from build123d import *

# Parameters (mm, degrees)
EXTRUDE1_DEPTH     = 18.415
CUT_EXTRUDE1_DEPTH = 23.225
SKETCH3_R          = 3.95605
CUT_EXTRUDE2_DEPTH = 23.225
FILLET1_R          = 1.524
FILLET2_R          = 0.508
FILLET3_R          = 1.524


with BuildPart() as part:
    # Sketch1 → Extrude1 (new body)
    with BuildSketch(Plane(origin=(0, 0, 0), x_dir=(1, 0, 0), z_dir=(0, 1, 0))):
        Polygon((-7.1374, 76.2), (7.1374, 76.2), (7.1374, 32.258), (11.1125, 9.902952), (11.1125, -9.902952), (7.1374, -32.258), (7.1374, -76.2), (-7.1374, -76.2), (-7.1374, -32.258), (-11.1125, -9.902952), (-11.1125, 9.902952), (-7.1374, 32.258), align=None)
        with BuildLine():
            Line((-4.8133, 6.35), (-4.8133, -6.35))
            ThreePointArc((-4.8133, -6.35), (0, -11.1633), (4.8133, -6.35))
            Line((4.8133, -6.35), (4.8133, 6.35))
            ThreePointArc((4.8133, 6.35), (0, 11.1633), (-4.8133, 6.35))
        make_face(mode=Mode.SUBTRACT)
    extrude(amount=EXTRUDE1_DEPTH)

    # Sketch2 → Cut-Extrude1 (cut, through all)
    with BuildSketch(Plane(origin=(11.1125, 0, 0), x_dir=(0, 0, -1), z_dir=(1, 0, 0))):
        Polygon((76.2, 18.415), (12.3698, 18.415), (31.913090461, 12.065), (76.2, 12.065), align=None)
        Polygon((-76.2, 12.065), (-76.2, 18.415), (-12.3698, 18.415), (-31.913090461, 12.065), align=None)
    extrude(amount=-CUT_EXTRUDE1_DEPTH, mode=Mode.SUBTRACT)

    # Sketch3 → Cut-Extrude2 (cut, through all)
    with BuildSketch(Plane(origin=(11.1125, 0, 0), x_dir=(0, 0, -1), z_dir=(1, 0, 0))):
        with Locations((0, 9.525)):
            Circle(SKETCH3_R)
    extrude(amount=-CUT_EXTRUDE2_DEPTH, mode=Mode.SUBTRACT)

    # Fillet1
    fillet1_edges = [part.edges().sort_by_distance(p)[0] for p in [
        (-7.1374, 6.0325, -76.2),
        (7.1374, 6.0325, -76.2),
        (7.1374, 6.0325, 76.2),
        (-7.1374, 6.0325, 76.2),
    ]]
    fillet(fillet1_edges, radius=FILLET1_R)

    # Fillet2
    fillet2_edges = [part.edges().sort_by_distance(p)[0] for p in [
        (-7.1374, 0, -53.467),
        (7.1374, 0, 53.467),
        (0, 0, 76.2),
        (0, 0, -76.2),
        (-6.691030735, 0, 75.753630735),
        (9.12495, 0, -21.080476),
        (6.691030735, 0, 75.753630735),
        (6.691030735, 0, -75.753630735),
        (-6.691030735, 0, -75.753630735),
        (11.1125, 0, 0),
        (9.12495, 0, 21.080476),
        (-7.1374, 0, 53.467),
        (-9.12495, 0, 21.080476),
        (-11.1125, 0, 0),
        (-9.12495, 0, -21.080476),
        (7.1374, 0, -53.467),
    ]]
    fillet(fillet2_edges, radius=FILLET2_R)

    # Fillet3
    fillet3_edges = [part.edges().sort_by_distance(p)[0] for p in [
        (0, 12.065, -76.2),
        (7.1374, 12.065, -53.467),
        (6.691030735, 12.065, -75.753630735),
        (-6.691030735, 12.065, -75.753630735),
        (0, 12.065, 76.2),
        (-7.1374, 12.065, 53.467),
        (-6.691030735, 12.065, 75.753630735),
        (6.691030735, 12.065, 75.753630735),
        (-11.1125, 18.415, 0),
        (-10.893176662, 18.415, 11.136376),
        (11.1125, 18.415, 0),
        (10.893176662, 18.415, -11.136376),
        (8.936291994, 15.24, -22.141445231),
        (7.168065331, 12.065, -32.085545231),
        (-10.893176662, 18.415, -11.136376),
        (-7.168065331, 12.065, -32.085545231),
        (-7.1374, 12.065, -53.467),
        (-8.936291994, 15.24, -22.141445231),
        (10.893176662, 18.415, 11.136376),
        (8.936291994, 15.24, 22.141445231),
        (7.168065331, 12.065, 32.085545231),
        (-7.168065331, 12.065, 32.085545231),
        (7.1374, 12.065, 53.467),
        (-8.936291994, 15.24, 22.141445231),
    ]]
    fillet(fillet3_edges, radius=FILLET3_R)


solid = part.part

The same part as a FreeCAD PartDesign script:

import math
import FreeCAD as App
import Part
import Sketcher
from FreeCAD import Vector
Q = App.Units.Quantity


def edges_at(feature, points):
    """Names of the edges that pass closest to the given points."""
    edges = feature.Shape.Edges
    near = lambda p: min(range(len(edges)), key=lambda i: edges[i].distToShape(Part.Vertex(*p))[0])
    return sorted({f"Edge{near(p) + 1}" for p in points})

doc = App.newDocument("Part")
body = doc.addObject("PartDesign::Body", "Body")

# Sketch on XZ plane
sketch1 = body.newObject("Sketcher::SketchObject", "Sketch")
sketch1.AttachmentSupport = (doc.getObject("XZ_Plane"), [""])
sketch1.MapMode = "FlatFace"
sketch1.addGeometry([
    Part.LineSegment(Vector(7.1, -76.2, 0), Vector(-7.1, -76.2, 0)),  # 0
    Part.LineSegment(Vector(-7.1, -76.2, 0), Vector(-7.1, -32.3, 0)),  # 1
    Part.LineSegment(Vector(-7.1, -32.3, 0), Vector(-11.1, -9.9, 0)),  # 2
    Part.LineSegment(Vector(-11.1, -9.9, 0), Vector(-11.1, 9.9, 0)),  # 3
    Part.LineSegment(Vector(-11.1, 9.9, 0), Vector(-7.1, 32.3, 0)),  # 4
    Part.LineSegment(Vector(-7.1, 32.3, 0), Vector(-7.1, 76.2, 0)),  # 5
    Part.LineSegment(Vector(-7.1, 76.2, 0), Vector(7.1, 76.2, 0)),  # 6
    Part.LineSegment(Vector(7.1, 76.2, 0), Vector(7.1, 32.3, 0)),  # 7
    Part.LineSegment(Vector(7.1, 32.3, 0), Vector(11.1, 9.9, 0)),  # 8
    Part.LineSegment(Vector(11.1, 9.9, 0), Vector(11.1, -9.9, 0)),  # 9
    Part.LineSegment(Vector(11.1, -9.9, 0), Vector(7.1, -32.3, 0)),  # 10
    Part.LineSegment(Vector(7.1, -32.3, 0), Vector(7.1, -76.2, 0)),  # 11
    Part.ArcOfCircle(Part.Circle(Vector(0, -6.3, 0), Vector(0, 0, 1), 4.8), math.radians(180), math.radians(360)),  # 12
    Part.LineSegment(Vector(4.8, -6.3, 0), Vector(4.8, 6.3, 0)),  # 13
    Part.ArcOfCircle(Part.Circle(Vector(0, 6.3, 0), Vector(0, 0, 1), 4.8), math.radians(0), math.radians(180)),  # 14
    Part.LineSegment(Vector(-4.8, 6.3, 0), Vector(-4.8, -6.3, 0)),  # 15
], False)
sketch1.addConstraint([
    Sketcher.Constraint("Coincident", 0, 2, 1, 1),
    Sketcher.Constraint("Coincident", 1, 2, 2, 1),
    Sketcher.Constraint("Coincident", 2, 2, 3, 1),
    Sketcher.Constraint("Coincident", 3, 2, 4, 1),
    Sketcher.Constraint("Coincident", 4, 2, 5, 1),
    Sketcher.Constraint("Coincident", 5, 2, 6, 1),
    Sketcher.Constraint("Coincident", 6, 2, 7, 1),
    Sketcher.Constraint("Coincident", 7, 2, 8, 1),
    Sketcher.Constraint("Coincident", 8, 2, 9, 1),
    Sketcher.Constraint("Coincident", 9, 2, 10, 1),
    Sketcher.Constraint("Coincident", 10, 2, 11, 1),
    Sketcher.Constraint("Coincident", 11, 2, 0, 1),
    Sketcher.Constraint("Tangent", 12, 2, 13, 1),
    Sketcher.Constraint("Tangent", 13, 2, 14, 1),
    Sketcher.Constraint("Tangent", 14, 2, 15, 1),
    Sketcher.Constraint("Tangent", 15, 2, 12, 1),
    Sketcher.Constraint("Horizontal", 0),
    Sketcher.Constraint("Vertical", 1),
    Sketcher.Constraint("Vertical", 3),
    Sketcher.Constraint("Vertical", 5),
    Sketcher.Constraint("Horizontal", 6),
    Sketcher.Constraint("Vertical", 7),
    Sketcher.Constraint("Vertical", 9),
    Sketcher.Constraint("Vertical", 11),
    Sketcher.Constraint("Vertical", 13),
    Sketcher.Constraint("Vertical", 15),
    Sketcher.Constraint("Symmetric", 12, 3, 14, 3, -1, 1),
    Sketcher.Constraint("Symmetric", 0, 2, 6, 2, -1, 1),
    Sketcher.Constraint("Symmetric", 2, 2, 8, 2, -1, 1),
    Sketcher.Constraint("Symmetric", 4, 2, 10, 2, -1, 1),
    Sketcher.Constraint("Symmetric", 4, 2, 7, 2, -2),
    Sketcher.Constraint("Parallel", 2, 8),
    Sketcher.Constraint("Parallel", 4, 10),
    Sketcher.Constraint("Horizontal", 3, 2, 8, 2),
    Sketcher.Constraint("DistanceY", 13, 1, 13, 2, Q("0.5 in")),
    Sketcher.Constraint("DistanceY", 0, 2, -1, 1, Q("3 in")),
    Sketcher.Constraint("DistanceY", 1, 1, 1, 2, Q("1.73 in")),
    Sketcher.Constraint("Radius", 12, Q("0.1895 in")),
    Sketcher.Constraint("DistanceX", 0, 2, 0, 1, Q("0.562 in")),
    Sketcher.Constraint("DistanceX", 2, 2, -1, 1, Q("0.4375 in")),
    Sketcher.Constraint("DistanceY", 3, 1, 3, 2, Q("19.805904 mm")),
])
pad1 = body.newObject("PartDesign::Pad", "Pad")
pad1.Profile = sketch1
pad1.Length = Q("0.725 in")
pad1.Reversed = True

# Sketch on YZ plane
sketch2 = body.newObject("Sketcher::SketchObject", "Sketch001")
sketch2.AttachmentSupport = (doc.getObject("YZ_Plane"), [""])
sketch2.MapMode = "FlatFace"
sketch2.AttachmentOffset = App.Placement(Vector(0, 0, 0.4375 * 25.4), App.Rotation())
sketch2.addGeometry([
    Part.LineSegment(Vector(18, -76, 0), Vector(18, -12, 0)),  # 0
    Part.LineSegment(Vector(18, -12, 0), Vector(12, -32, 0)),  # 1
    Part.LineSegment(Vector(12, -32, 0), Vector(12, -76, 0)),  # 2
    Part.LineSegment(Vector(12, -76, 0), Vector(18, -76, 0)),  # 3
    Part.LineSegment(Vector(18, 76, 0), Vector(12, 76, 0)),  # 4
    Part.LineSegment(Vector(12, 76, 0), Vector(12, 32, 0)),  # 5
    Part.LineSegment(Vector(12, 32, 0), Vector(18, 12, 0)),  # 6
    Part.LineSegment(Vector(18, 12, 0), Vector(18, 76, 0)),  # 7
], False)
sketch2.addConstraint([
    Sketcher.Constraint("Coincident", 0, 2, 1, 1),
    Sketcher.Constraint("Coincident", 1, 2, 2, 1),
    Sketcher.Constraint("Coincident", 2, 2, 3, 1),
    Sketcher.Constraint("Coincident", 3, 2, 0, 1),
    Sketcher.Constraint("Coincident", 4, 2, 5, 1),
    Sketcher.Constraint("Coincident", 5, 2, 6, 1),
    Sketcher.Constraint("Coincident", 6, 2, 7, 1),
    Sketcher.Constraint("Coincident", 7, 2, 4, 1),
    Sketcher.Constraint("Vertical", 0),
    Sketcher.Constraint("Vertical", 2),
    Sketcher.Constraint("Horizontal", 3),
    Sketcher.Constraint("Horizontal", 4),
    Sketcher.Constraint("Vertical", 5),
    Sketcher.Constraint("Vertical", 7),
    Sketcher.Constraint("Symmetric", 2, 2, 4, 2, -1),
    Sketcher.Constraint("Symmetric", 0, 2, 6, 2, -1),
    Sketcher.Constraint("Equal", 2, 5),
    Sketcher.Constraint("DistanceY", 2, 2, -1, 1, Q("3 in")),
    Sketcher.Constraint("Angle", 1, Q("-108 deg")),
    Sketcher.Constraint("DistanceX", 3, 1, 3, 2, Q("0.25 in")),
    Sketcher.Constraint("DistanceY", 0, 1, 0, 2, Q("2.513 in")),
    Sketcher.Constraint("DistanceX", -1, 1, 0, 2, Q("0.725 in")),
])
pocket1 = body.newObject("PartDesign::Pocket", "Pocket")
pocket1.Profile = sketch2
pocket1.Type = "ThroughAll"

# Sketch on YZ plane
sketch3 = body.newObject("Sketcher::SketchObject", "Sketch002")
sketch3.AttachmentSupport = (doc.getObject("YZ_Plane"), [""])
sketch3.MapMode = "FlatFace"
sketch3.AttachmentOffset = App.Placement(Vector(0, 0, 0.4375 * 25.4), App.Rotation())
sketch3.addGeometry(Part.Circle(Vector(9.5, 0, 0), Vector(0, 0, 1), 4), False)
sketch3.addConstraint([
    Sketcher.Constraint("PointOnObject", 0, 3, -1),
    Sketcher.Constraint("Diameter", 0, Q("0.3115 in")),
    Sketcher.Constraint("DistanceX", -1, 1, 0, 3, Q("0.375 in")),
])
pocket2 = body.newObject("PartDesign::Pocket", "Pocket001")
pocket2.Profile = sketch3
pocket2.Type = "ThroughAll"
doc.recompute()

fillet = body.newObject("PartDesign::Fillet", "Fillet")
fillet.Base = (pocket2, edges_at(pocket2, [
    (-7.137, 6.032, -76.2),
    (7.137, 6.032, -76.2),
    (7.137, 6.032, 76.2),
    (-7.137, 6.032, 76.2),
]))
fillet.Radius = Q("0.06 in")
doc.recompute()

fillet2 = body.newObject("PartDesign::Fillet", "Fillet001")
fillet2.Base = (fillet, edges_at(fillet, [
    (-7.137, 0, -53.467),
    (7.137, 0, 53.467),
    (0, 0, 76.2),
    (0, 0, -76.2),
    (-6.691, 0, 75.754),
    (9.125, 0, -21.08),
    (6.691, 0, 75.754),
    (6.691, 0, -75.754),
    (-6.691, 0, -75.754),
    (11.113, 0, 0),
    (9.125, 0, 21.08),
    (-7.137, 0, 53.467),
    (-9.125, 0, 21.08),
    (-11.113, 0, 0),
    (-9.125, 0, -21.08),
    (7.137, 0, -53.467),
]))
fillet2.Radius = Q("0.02 in")
doc.recompute()

fillet3 = body.newObject("PartDesign::Fillet", "Fillet002")
fillet3.Base = (fillet2, edges_at(fillet2, [
    (0, 12.065, -76.2),
    (7.137, 12.065, -53.467),
    (6.691, 12.065, -75.754),
    (-6.691, 12.065, -75.754),
    (0, 12.065, 76.2),
    (-7.137, 12.065, 53.467),
    (-6.691, 12.065, 75.754),
    (6.691, 12.065, 75.754),
    (-11.113, 18.415, 0),
    (-10.893, 18.415, 11.136),
    (11.113, 18.415, 0),
    (10.893, 18.415, -11.136),
    (8.936, 15.24, -22.141),
    (7.168, 12.065, -32.086),
    (-10.893, 18.415, -11.136),
    (-7.168, 12.065, -32.086),
    (-7.137, 12.065, -53.467),
    (-8.936, 15.24, -22.141),
    (10.893, 18.415, 11.136),
    (8.936, 15.24, 22.141),
    (7.168, 12.065, 32.086),
    (-7.168, 12.065, 32.086),
    (7.137, 12.065, 53.467),
    (-8.936, 15.24, 22.141),
]))
fillet3.Radius = Q("0.06 in")

doc.recompute()
